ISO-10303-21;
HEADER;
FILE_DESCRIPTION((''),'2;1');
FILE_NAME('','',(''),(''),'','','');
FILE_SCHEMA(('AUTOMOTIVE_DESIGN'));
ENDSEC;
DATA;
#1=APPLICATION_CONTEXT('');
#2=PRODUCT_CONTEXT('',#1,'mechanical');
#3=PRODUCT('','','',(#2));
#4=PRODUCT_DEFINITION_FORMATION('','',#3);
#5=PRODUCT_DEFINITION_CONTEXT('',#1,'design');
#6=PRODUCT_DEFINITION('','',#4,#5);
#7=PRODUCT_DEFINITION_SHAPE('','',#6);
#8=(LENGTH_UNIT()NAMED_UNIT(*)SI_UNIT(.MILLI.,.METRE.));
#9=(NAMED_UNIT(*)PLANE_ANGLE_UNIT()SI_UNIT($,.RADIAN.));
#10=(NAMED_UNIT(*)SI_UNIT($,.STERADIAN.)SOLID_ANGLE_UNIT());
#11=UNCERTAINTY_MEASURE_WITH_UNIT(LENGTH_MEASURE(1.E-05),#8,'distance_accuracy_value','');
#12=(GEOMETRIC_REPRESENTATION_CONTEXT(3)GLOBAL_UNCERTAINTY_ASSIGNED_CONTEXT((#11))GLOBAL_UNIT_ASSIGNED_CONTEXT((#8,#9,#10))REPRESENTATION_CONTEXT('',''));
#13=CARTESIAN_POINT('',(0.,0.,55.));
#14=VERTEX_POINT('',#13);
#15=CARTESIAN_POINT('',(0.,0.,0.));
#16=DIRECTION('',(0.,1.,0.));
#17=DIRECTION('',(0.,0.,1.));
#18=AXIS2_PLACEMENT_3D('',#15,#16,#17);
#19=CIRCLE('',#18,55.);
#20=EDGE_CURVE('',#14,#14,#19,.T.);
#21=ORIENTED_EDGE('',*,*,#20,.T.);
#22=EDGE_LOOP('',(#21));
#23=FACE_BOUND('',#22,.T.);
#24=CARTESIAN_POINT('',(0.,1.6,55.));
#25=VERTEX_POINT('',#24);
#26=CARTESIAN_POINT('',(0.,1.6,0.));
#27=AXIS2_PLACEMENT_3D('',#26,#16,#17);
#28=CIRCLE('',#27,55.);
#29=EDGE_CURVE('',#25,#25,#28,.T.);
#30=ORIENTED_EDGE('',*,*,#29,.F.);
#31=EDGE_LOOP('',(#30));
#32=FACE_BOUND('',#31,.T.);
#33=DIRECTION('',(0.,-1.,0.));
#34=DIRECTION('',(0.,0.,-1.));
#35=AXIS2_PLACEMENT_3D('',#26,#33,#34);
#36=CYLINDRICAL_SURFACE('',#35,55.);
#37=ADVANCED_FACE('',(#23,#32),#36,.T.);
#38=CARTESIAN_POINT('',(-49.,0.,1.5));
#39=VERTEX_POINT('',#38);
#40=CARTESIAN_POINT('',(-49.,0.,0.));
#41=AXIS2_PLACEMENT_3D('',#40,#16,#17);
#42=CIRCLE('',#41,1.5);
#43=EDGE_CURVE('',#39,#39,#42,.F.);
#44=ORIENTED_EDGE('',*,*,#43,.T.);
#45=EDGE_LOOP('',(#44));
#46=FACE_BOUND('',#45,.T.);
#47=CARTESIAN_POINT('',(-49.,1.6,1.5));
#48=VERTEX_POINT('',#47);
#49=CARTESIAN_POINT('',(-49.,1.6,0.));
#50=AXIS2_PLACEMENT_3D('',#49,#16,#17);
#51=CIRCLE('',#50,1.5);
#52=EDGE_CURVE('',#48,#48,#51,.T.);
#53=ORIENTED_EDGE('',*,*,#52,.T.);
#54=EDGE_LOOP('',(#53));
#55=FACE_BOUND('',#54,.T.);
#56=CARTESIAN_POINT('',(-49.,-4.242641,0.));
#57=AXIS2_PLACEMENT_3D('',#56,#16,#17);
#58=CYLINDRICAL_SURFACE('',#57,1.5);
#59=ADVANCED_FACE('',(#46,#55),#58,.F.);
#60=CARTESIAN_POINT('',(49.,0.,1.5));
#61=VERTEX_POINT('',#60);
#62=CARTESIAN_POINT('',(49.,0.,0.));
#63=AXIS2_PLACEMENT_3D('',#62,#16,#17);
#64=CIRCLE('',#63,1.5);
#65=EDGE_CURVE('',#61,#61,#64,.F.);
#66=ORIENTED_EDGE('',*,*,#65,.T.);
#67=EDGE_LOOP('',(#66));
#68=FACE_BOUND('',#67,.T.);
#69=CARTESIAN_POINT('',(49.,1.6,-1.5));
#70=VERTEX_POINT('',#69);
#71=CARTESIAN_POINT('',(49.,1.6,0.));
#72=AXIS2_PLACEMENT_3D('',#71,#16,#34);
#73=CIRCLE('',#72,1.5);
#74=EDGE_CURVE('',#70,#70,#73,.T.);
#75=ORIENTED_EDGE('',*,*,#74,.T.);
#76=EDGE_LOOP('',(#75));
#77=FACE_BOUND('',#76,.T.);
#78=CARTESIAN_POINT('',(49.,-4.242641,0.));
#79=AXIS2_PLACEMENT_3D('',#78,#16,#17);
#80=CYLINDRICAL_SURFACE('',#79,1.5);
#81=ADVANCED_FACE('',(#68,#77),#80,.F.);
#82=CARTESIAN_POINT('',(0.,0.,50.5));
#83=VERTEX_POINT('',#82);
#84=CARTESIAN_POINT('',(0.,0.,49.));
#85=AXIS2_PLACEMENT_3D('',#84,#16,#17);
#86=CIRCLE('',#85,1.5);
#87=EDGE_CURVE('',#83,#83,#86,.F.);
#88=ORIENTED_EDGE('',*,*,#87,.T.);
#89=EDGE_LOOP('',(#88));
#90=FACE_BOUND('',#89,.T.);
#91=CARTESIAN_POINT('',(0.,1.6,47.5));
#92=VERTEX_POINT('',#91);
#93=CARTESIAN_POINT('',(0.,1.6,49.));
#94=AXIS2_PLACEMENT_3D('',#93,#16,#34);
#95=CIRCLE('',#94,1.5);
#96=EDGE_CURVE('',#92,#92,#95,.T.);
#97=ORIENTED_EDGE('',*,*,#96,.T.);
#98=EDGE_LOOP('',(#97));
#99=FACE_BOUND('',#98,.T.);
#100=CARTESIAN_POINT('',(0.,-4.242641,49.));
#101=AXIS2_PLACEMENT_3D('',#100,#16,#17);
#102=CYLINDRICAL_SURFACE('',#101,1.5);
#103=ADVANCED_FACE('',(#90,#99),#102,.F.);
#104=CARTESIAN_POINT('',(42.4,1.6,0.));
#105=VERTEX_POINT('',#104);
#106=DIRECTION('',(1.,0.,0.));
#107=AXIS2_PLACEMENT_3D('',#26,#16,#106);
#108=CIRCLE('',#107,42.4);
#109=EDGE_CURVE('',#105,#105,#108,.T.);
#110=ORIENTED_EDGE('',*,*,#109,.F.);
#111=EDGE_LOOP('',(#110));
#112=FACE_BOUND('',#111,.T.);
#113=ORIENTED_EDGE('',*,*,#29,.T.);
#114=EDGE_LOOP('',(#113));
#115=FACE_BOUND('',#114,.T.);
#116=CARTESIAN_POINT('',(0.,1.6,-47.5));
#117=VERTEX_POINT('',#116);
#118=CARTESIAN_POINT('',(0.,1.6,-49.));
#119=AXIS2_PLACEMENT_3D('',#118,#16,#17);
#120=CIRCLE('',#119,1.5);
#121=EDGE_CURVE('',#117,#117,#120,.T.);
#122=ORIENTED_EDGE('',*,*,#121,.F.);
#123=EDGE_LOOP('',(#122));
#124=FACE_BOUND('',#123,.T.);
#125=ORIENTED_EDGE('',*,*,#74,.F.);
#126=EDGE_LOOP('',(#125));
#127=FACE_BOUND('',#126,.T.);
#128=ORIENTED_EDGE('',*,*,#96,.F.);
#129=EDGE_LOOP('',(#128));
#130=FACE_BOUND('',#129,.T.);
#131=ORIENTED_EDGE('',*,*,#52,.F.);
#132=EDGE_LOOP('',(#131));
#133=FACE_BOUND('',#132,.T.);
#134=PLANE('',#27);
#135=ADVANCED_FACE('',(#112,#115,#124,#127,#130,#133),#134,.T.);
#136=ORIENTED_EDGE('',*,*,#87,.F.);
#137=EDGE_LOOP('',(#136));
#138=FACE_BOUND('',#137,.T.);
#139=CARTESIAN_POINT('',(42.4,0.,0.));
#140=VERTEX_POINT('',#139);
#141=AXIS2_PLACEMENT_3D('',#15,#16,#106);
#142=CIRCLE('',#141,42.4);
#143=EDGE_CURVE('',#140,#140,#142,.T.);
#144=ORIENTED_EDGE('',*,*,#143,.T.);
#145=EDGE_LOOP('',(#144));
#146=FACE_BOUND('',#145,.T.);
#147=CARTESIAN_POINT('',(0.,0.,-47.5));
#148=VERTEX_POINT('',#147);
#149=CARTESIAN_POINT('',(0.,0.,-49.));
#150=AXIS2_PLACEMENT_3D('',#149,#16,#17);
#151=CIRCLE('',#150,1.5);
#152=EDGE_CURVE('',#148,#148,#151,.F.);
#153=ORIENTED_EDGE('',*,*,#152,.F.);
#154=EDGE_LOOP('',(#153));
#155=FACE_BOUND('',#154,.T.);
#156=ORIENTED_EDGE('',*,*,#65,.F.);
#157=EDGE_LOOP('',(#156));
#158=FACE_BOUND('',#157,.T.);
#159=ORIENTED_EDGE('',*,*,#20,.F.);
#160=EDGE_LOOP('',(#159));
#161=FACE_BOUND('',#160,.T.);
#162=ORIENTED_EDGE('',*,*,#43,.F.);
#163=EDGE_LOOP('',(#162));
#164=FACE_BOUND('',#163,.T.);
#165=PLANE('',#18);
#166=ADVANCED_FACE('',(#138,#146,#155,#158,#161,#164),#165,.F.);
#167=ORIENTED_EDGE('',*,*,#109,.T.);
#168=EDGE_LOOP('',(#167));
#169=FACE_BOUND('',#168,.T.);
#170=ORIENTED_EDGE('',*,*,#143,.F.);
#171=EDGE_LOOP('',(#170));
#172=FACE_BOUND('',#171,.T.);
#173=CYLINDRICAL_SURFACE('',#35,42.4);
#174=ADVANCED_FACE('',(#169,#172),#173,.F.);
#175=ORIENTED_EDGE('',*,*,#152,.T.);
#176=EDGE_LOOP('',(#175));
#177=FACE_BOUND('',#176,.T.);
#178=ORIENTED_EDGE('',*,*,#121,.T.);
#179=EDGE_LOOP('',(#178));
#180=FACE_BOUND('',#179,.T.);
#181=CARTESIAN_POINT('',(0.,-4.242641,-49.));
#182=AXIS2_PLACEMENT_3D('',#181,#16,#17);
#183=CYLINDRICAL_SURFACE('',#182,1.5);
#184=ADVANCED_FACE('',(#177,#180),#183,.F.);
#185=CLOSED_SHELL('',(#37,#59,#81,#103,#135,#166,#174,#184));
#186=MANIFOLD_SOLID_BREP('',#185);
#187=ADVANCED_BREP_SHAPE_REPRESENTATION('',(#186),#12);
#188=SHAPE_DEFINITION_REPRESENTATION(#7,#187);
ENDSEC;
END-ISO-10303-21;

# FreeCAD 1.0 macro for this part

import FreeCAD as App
import Part
import Sketcher
from FreeCAD import Vector
Q = App.Units.Quantity

doc = App.newDocument("Part")
params = doc.addObject("Spreadsheet::Sheet", "Params")
for row, (alias, value) in enumerate([
    ("sketch1_diameter", "110 mm"),
    ("sketch1_diameter2", "84.8 mm"),
    ("pad1_length", "1.6 mm"),
    ("sketch2_diameter", "3 mm"),
    ("pocket1_length", "1.6 mm"),
], start=1):
    params.set(f"A{row}", alias)
    params.set(f"B{row}", "=" + value)
    params.setAlias(f"B{row}", alias)

body = doc.addObject("PartDesign::Body", "Body")

# Sketch on XZ plane
sketch1 = body.newObject("Sketcher::SketchObject", "Sketch")
sketch1.AttachmentSupport = (doc.getObject("XZ_Plane"), [""])
sketch1.MapMode = "FlatFace"
sketch1.addGeometry([
    Part.Circle(Vector(0, 0, 0), Vector(0, 0, 1), 55),
    Part.Circle(Vector(0, 0, 0), Vector(0, 0, 1), 42),
], False)
sketch1.addConstraint([
    Sketcher.Constraint("Coincident", 0, 3, -1, 1),
    Sketcher.Constraint("Coincident", 1, 3, -1, 1),
    Sketcher.Constraint("Diameter", 0, Q("110 mm")),
    Sketcher.Constraint("Diameter", 1, Q("84.8 mm")),
])
sketch1.setExpression("Constraints[2]", "Params.sketch1_diameter")
sketch1.setExpression("Constraints[3]", "Params.sketch1_diameter2")
pad1 = body.newObject("PartDesign::Pad", "Pad")
pad1.Profile = sketch1
pad1.setExpression("Length", "Params.pad1_length")
pad1.Reversed = True

# Sketch on XZ plane
sketch2 = body.newObject("Sketcher::SketchObject", "Sketch001")
sketch2.AttachmentSupport = (doc.getObject("XZ_Plane"), [""])
sketch2.MapMode = "FlatFace"
sketch2.AttachmentOffset = App.Placement(Vector(0, 0, -1.6), App.Rotation())
sketch2.addGeometry([
    Part.Circle(Vector(-49, 0, 0), Vector(0, 0, 1), 1.5),
    Part.Circle(Vector(0, -49, 0), Vector(0, 0, 1), 1.5),
    Part.Circle(Vector(49, 0, 0), Vector(0, 0, 1), 1.5),
    Part.Circle(Vector(0, 49, 0), Vector(0, 0, 1), 1.5),
], False)
sketch2.addConstraint([
    Sketcher.Constraint("Equal", 0, 1),
    Sketcher.Constraint("Equal", 1, 2),
    Sketcher.Constraint("Equal", 2, 3),
    Sketcher.Constraint("Symmetric", 0, 3, 2, 3, -1, 1),
    Sketcher.Constraint("Symmetric", 1, 3, 3, 3, -1, 1),
    Sketcher.Constraint("PointOnObject", 0, 3, -1),
    Sketcher.Constraint("PointOnObject", 1, 3, -2),
    Sketcher.Constraint("Diameter", 0, Q("3 mm")),
    Sketcher.Constraint("DistanceX", 0, 3, -1, 1, Q("49 mm")),
    Sketcher.Constraint("DistanceY", 1, 3, -1, 1, Q("49 mm")),
])
sketch2.setExpression("Constraints[7]", "Params.sketch2_diameter")
pocket1 = body.newObject("PartDesign::Pocket", "Pocket")
pocket1.Profile = sketch2
pocket1.setExpression("Length", "Params.pocket1_length")
pocket1.Reversed = True

doc.recompute()
